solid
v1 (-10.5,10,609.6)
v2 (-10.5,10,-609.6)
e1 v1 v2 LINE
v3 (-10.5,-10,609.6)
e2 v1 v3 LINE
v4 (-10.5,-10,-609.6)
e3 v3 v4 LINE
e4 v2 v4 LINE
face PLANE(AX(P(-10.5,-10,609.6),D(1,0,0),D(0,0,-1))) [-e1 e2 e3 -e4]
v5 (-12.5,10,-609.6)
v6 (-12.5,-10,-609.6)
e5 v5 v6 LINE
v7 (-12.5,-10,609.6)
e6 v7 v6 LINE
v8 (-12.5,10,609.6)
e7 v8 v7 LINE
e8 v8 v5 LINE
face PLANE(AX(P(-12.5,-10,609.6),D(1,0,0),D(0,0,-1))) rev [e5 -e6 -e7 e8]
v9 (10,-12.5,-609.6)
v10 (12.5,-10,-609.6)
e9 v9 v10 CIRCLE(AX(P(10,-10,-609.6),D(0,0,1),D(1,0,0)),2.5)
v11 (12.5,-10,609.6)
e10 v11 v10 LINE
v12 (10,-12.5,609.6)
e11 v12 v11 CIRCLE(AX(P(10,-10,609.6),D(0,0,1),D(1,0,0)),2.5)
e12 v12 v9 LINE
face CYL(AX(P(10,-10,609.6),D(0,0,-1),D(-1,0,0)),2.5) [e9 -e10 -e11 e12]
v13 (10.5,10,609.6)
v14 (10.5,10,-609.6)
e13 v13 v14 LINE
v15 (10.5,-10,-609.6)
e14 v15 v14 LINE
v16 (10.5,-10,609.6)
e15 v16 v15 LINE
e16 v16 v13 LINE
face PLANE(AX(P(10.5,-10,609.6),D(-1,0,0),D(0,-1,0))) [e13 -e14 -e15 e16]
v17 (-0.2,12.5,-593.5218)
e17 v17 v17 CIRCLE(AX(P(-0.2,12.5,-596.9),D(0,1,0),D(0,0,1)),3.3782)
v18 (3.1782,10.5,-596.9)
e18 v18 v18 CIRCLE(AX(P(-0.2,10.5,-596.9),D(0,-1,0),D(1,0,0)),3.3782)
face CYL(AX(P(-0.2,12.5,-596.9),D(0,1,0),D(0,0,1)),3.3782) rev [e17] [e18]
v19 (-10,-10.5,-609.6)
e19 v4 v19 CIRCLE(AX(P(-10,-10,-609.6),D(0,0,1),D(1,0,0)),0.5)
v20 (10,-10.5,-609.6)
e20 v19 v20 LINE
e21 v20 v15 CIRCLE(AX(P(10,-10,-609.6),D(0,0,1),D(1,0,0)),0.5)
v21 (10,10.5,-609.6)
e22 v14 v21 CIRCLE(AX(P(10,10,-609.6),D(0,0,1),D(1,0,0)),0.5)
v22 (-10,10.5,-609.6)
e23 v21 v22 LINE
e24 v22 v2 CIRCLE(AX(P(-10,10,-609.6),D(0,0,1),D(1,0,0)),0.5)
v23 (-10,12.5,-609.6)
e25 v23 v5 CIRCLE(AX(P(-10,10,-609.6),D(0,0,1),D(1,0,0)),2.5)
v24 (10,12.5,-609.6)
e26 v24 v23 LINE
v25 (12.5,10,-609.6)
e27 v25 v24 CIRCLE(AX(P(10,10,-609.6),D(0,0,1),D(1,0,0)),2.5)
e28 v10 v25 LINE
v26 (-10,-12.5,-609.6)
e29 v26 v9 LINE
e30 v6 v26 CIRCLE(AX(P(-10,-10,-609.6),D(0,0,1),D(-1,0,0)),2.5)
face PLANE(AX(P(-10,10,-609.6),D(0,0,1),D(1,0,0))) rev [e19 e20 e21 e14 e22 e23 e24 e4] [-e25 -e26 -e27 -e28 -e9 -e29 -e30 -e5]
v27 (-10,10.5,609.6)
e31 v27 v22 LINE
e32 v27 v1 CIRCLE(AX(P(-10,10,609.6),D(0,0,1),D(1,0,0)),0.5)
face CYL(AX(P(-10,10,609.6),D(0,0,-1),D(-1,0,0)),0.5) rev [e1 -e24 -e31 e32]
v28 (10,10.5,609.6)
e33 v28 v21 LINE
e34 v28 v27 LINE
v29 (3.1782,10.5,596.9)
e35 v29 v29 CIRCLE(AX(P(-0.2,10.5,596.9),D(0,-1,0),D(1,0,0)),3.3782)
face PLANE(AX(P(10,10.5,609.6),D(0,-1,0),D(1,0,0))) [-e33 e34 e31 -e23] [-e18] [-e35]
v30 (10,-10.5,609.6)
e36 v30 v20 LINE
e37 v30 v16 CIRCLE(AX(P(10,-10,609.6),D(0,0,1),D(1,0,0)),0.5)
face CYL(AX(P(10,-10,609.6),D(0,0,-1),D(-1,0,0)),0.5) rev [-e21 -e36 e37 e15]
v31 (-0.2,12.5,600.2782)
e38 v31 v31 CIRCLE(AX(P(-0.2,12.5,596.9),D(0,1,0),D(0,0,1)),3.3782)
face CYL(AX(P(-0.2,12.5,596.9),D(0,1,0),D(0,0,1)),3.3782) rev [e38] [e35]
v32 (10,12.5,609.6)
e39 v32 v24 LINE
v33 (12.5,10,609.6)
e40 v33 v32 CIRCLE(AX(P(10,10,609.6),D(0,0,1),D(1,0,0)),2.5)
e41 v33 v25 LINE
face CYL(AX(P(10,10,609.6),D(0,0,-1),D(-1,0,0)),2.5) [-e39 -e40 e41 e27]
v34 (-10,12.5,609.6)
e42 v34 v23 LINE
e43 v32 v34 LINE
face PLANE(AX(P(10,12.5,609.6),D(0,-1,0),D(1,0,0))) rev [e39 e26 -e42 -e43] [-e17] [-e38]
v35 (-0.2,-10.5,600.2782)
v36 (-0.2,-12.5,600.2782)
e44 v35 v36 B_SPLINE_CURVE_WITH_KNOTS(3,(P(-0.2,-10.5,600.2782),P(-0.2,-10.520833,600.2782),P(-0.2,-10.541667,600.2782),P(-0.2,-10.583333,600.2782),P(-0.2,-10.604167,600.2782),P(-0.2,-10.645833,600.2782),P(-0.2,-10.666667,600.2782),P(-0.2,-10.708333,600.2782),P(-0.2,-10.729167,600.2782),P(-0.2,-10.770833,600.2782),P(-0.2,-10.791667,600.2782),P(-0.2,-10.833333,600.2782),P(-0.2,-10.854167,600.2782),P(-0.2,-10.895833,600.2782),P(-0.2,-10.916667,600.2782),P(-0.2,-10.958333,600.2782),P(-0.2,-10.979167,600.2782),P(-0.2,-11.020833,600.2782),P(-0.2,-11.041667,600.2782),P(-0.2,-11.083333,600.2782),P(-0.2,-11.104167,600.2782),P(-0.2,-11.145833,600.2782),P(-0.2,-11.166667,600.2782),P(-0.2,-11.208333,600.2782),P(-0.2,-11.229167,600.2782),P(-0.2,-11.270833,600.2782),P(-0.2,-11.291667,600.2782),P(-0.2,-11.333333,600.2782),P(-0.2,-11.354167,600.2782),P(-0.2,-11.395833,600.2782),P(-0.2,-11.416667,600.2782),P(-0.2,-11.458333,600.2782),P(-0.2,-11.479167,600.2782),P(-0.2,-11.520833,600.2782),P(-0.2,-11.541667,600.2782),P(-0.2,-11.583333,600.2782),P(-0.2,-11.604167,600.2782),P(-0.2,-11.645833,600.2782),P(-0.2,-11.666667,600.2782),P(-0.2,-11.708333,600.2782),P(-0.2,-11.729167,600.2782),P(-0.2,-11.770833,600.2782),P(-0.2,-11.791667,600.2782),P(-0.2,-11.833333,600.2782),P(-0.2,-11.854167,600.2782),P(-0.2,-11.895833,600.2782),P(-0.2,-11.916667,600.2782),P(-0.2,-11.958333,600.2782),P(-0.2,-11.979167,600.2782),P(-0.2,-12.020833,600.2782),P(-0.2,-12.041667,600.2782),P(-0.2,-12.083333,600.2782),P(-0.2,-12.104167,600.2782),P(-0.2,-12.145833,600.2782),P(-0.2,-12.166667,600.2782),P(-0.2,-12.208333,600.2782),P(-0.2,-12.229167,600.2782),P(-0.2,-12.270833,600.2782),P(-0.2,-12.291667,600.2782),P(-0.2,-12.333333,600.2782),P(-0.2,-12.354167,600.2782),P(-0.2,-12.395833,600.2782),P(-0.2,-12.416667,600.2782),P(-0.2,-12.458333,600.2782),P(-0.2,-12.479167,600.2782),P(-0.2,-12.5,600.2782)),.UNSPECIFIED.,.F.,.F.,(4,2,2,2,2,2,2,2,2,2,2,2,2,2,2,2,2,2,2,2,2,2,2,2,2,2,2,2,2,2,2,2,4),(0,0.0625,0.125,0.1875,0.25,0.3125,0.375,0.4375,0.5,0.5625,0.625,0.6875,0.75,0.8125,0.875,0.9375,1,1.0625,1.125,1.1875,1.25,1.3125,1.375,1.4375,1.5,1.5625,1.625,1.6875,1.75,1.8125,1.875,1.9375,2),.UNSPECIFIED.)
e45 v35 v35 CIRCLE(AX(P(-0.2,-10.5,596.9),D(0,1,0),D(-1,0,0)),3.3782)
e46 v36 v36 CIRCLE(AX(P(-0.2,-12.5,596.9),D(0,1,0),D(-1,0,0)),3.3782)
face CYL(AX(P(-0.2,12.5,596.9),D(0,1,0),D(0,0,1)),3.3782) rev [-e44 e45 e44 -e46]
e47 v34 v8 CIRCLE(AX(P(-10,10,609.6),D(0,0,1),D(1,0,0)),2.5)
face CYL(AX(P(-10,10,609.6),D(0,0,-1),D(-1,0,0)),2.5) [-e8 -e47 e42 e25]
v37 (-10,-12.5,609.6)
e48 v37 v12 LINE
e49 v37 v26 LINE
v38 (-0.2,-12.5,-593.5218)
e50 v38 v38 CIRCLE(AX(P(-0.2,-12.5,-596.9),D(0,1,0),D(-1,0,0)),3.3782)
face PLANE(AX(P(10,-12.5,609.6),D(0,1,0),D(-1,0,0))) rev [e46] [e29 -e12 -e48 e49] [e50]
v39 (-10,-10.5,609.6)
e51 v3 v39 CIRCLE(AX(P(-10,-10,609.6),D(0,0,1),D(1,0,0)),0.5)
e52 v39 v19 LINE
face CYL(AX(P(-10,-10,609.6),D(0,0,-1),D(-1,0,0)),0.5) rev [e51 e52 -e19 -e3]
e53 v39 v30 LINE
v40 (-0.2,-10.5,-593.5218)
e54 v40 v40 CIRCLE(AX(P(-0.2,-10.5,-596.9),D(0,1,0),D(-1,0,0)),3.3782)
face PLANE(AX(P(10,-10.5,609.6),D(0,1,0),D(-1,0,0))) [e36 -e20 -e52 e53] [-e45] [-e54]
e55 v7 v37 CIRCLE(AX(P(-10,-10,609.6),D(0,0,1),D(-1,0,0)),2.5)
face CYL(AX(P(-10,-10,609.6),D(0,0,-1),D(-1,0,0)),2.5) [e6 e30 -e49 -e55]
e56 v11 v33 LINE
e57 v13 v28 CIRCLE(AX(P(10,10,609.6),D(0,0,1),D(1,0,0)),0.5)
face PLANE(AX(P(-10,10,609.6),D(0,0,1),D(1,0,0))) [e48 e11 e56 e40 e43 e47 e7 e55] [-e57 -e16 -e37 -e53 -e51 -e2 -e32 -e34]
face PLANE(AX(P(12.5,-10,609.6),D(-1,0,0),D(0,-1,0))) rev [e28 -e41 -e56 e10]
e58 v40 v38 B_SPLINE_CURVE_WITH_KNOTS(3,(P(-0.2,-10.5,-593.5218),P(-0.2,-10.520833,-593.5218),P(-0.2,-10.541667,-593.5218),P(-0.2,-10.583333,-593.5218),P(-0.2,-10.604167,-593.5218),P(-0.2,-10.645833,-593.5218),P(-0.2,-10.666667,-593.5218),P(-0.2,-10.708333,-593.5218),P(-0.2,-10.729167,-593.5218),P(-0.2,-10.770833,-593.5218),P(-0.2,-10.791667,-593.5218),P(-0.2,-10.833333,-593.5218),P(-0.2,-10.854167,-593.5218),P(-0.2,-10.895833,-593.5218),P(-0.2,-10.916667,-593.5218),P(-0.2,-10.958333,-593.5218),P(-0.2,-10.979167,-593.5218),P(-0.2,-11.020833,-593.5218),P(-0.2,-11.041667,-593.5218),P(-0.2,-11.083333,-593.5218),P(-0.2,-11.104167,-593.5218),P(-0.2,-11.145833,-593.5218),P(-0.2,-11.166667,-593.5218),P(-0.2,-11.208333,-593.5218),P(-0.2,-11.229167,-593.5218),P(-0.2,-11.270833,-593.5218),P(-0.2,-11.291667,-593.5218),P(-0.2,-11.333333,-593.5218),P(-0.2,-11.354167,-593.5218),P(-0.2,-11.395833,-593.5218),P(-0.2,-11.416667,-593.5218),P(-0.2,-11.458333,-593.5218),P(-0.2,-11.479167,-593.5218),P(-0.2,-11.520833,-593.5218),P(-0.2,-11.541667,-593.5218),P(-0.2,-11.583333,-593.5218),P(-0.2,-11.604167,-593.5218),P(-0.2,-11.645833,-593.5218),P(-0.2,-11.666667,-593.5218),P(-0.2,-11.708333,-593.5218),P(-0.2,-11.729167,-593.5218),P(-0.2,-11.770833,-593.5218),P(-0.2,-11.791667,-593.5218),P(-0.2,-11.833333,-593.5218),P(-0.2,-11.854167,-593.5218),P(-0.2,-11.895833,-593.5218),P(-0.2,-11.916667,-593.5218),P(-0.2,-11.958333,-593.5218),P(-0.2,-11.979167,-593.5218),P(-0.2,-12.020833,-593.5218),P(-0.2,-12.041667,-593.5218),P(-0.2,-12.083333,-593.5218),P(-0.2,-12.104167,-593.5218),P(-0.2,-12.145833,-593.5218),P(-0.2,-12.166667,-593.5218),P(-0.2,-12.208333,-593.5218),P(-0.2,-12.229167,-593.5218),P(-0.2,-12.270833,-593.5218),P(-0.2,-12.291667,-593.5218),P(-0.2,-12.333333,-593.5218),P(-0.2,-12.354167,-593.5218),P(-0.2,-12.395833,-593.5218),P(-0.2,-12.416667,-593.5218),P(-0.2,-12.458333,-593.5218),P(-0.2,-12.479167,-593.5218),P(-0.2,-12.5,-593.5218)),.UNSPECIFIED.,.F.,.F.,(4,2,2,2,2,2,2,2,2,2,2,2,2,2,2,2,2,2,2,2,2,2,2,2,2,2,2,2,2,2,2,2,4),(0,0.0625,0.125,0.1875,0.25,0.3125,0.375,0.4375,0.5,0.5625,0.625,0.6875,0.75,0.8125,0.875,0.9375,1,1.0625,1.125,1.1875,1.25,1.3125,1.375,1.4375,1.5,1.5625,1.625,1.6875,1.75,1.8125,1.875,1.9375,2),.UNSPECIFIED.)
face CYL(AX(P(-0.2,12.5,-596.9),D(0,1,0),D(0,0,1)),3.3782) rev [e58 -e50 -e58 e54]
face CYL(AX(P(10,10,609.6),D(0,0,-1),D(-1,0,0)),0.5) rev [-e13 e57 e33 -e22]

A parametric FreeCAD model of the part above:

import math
import FreeCAD as App
import Part
import Sketcher

V = App.Vector

doc = App.newDocument("Part")
params = doc.addObject("Spreadsheet::Sheet", "Params")
for row, (alias, value) in enumerate([
    ("sketch1_radius", "2.5 mm"),
    ("sketch1_radius2", "0.5 mm"),
    ("sketch1_width", "20 mm"),
    ("pad1_length", "1219.2 mm"),
    ("hole_diameter", "6.7564 mm"),
    ("hole_depth", "25.4 mm"),
], start=1):
    params.set(f"A{row}", alias)
    params.set(f"B{row}", "=" + value)
    params.setAlias(f"B{row}", alias)

body = doc.addObject("PartDesign::Body", "Body")

sketch1 = doc.addObject("Sketcher::SketchObject", "Sketch")
body.addObject(sketch1)
sketch1.AttachmentSupport = (doc.XY_Plane, [""])
sketch1.MapMode = "FlatFace"
sketch1.addGeometry([
    Part.LineSegment(V(-12.5, 10, 0), V(-12.5, -10, 0)),
    Part.ArcOfCircle(Part.Circle(V(-10, -10, 0), V(0, 0, 1), 2.5), math.radians(180), math.radians(270)),
    Part.LineSegment(V(-10, -12.5, 0), V(10, -12.5, 0)),
    Part.ArcOfCircle(Part.Circle(V(10, -10, 0), V(0, 0, 1), 2.5), math.radians(-90), math.radians(0)),
    Part.LineSegment(V(12.5, -10, 0), V(12.5, 10, 0)),
    Part.ArcOfCircle(Part.Circle(V(10, 10, 0), V(0, 0, 1), 2.5), math.radians(0), math.radians(90)),
    Part.LineSegment(V(10, 12.5, 0), V(-10, 12.5, 0)),
    Part.ArcOfCircle(Part.Circle(V(-10, 10, 0), V(0, 0, 1), 2.5), math.radians(90), math.radians(180)),
    Part.LineSegment(V(-10.5, -10, 0), V(-10.5, 10, 0)),
    Part.ArcOfCircle(Part.Circle(V(-10, 10, 0), V(0, 0, 1), 0.5), math.radians(90), math.radians(180)),
    Part.LineSegment(V(-10, 10.5, 0), V(10, 10.5, 0)),
    Part.ArcOfCircle(Part.Circle(V(10, 10, 0), V(0, 0, 1), 0.5), math.radians(0), math.radians(90)),
    Part.LineSegment(V(10.5, 10, 0), V(10.5, -10, 0)),
    Part.ArcOfCircle(Part.Circle(V(10, -10, 0), V(0, 0, 1), 0.5), math.radians(-90), math.radians(0)),
    Part.LineSegment(V(10, -10.5, 0), V(-10, -10.5, 0)),
    Part.ArcOfCircle(Part.Circle(V(-10, -10, 0), V(0, 0, 1), 0.5), math.radians(180), math.radians(270)),
], False)
sketch1.addConstraint([
    Sketcher.Constraint("Tangent", 0, 2, 1, 1),
    Sketcher.Constraint("Tangent", 1, 2, 2, 1),
    Sketcher.Constraint("Tangent", 2, 2, 3, 1),
    Sketcher.Constraint("Tangent", 3, 2, 4, 1),
    Sketcher.Constraint("Tangent", 4, 2, 5, 1),
    Sketcher.Constraint("Tangent", 5, 2, 6, 1),
    Sketcher.Constraint("Tangent", 6, 2, 7, 1),
    Sketcher.Constraint("Tangent", 7, 2, 0, 1),
    Sketcher.Constraint("Tangent", 8, 2, 9, 2),
    Sketcher.Constraint("Tangent", 9, 1, 10, 1),
    Sketcher.Constraint("Tangent", 10, 2, 11, 2),
    Sketcher.Constraint("Tangent", 11, 1, 12, 1),
    Sketcher.Constraint("Tangent", 12, 2, 13, 2),
    Sketcher.Constraint("Tangent", 13, 1, 14, 1),
    Sketcher.Constraint("Tangent", 14, 2, 15, 2),
    Sketcher.Constraint("Tangent", 15, 1, 8, 1),
    Sketcher.Constraint("Vertical", 0),
    Sketcher.Constraint("Horizontal", 2),
    Sketcher.Constraint("Vertical", 4),
    Sketcher.Constraint("Horizontal", 6),
    Sketcher.Constraint("Vertical", 8),
    Sketcher.Constraint("Horizontal", 10),
    Sketcher.Constraint("Vertical", 12),
    Sketcher.Constraint("Horizontal", 14),
    Sketcher.Constraint("Coincident", 9, 3, 7, 3),
    Sketcher.Constraint("Coincident", 11, 3, 5, 3),
    Sketcher.Constraint("Coincident", 13, 3, 3, 3),
    Sketcher.Constraint("Equal", 1, 3),
    Sketcher.Constraint("Equal", 3, 5),
    Sketcher.Constraint("Equal", 5, 7),
    Sketcher.Constraint("Equal", 13, 15),
    Sketcher.Constraint("Symmetric", 1, 3, 5, 3, -1, 1),
    Sketcher.Constraint("Equal", 14, 0),
    Sketcher.Constraint("Radius", 1, 2.5),
    Sketcher.Constraint("Radius", 9, 0.5),
    Sketcher.Constraint("DistanceX", 2, 1, 2, 2, 20.0),
])
sketch1.setExpression("Constraints[33]", "Params.sketch1_radius")
sketch1.setExpression("Constraints[34]", "Params.sketch1_radius2")
sketch1.setExpression("Constraints[35]", "Params.sketch1_width")
pad1 = doc.addObject("PartDesign::Pad", "Pad")
body.addObject(pad1)
pad1.Profile = sketch1
pad1.setExpression("Length", "Params.pad1_length")
pad1.Midplane = True

sketch2 = doc.addObject("Sketcher::SketchObject", "Sketch001")
body.addObject(sketch2)
sketch2.AttachmentSupport = (doc.XZ_Plane, [""])
sketch2.MapMode = "FlatFace"
sketch2.AttachmentOffset = App.Placement(V(0, 0, -12.5), App.Rotation())
sketch2.addGeometry([
    Part.Circle(V(-0.2, -596.9, 0), V(0, 0, 1), 3.4),
    Part.Circle(V(-0.2, 596.9, 0), V(0, 0, 1), 3.4),
], False)
sketch2.addConstraint([
    Sketcher.Constraint("Equal", 0, 1),
    Sketcher.Constraint("Symmetric", 0, 3, 1, 3, -1),
    Sketcher.Constraint("Diameter", 0, 6.7564),
    Sketcher.Constraint("DistanceX", 0, 3, -1, 1, 0.2),
    Sketcher.Constraint("DistanceY", 0, 3, -1, 1, 596.9),
])
doc.recompute()
hole = doc.addObject("PartDesign::Hole", "Hole")
body.addObject(hole)
hole.Profile = sketch2
hole.ThreadType = "None"
hole.setExpression("Diameter", "Params.hole_diameter")
hole.DepthType = "Dimension"
hole.setExpression("Depth", "Params.hole_depth")
hole.DrillPoint = "Angled"
hole.DrillPointAngle = 118
hole.Reversed = True

doc.recompute()
